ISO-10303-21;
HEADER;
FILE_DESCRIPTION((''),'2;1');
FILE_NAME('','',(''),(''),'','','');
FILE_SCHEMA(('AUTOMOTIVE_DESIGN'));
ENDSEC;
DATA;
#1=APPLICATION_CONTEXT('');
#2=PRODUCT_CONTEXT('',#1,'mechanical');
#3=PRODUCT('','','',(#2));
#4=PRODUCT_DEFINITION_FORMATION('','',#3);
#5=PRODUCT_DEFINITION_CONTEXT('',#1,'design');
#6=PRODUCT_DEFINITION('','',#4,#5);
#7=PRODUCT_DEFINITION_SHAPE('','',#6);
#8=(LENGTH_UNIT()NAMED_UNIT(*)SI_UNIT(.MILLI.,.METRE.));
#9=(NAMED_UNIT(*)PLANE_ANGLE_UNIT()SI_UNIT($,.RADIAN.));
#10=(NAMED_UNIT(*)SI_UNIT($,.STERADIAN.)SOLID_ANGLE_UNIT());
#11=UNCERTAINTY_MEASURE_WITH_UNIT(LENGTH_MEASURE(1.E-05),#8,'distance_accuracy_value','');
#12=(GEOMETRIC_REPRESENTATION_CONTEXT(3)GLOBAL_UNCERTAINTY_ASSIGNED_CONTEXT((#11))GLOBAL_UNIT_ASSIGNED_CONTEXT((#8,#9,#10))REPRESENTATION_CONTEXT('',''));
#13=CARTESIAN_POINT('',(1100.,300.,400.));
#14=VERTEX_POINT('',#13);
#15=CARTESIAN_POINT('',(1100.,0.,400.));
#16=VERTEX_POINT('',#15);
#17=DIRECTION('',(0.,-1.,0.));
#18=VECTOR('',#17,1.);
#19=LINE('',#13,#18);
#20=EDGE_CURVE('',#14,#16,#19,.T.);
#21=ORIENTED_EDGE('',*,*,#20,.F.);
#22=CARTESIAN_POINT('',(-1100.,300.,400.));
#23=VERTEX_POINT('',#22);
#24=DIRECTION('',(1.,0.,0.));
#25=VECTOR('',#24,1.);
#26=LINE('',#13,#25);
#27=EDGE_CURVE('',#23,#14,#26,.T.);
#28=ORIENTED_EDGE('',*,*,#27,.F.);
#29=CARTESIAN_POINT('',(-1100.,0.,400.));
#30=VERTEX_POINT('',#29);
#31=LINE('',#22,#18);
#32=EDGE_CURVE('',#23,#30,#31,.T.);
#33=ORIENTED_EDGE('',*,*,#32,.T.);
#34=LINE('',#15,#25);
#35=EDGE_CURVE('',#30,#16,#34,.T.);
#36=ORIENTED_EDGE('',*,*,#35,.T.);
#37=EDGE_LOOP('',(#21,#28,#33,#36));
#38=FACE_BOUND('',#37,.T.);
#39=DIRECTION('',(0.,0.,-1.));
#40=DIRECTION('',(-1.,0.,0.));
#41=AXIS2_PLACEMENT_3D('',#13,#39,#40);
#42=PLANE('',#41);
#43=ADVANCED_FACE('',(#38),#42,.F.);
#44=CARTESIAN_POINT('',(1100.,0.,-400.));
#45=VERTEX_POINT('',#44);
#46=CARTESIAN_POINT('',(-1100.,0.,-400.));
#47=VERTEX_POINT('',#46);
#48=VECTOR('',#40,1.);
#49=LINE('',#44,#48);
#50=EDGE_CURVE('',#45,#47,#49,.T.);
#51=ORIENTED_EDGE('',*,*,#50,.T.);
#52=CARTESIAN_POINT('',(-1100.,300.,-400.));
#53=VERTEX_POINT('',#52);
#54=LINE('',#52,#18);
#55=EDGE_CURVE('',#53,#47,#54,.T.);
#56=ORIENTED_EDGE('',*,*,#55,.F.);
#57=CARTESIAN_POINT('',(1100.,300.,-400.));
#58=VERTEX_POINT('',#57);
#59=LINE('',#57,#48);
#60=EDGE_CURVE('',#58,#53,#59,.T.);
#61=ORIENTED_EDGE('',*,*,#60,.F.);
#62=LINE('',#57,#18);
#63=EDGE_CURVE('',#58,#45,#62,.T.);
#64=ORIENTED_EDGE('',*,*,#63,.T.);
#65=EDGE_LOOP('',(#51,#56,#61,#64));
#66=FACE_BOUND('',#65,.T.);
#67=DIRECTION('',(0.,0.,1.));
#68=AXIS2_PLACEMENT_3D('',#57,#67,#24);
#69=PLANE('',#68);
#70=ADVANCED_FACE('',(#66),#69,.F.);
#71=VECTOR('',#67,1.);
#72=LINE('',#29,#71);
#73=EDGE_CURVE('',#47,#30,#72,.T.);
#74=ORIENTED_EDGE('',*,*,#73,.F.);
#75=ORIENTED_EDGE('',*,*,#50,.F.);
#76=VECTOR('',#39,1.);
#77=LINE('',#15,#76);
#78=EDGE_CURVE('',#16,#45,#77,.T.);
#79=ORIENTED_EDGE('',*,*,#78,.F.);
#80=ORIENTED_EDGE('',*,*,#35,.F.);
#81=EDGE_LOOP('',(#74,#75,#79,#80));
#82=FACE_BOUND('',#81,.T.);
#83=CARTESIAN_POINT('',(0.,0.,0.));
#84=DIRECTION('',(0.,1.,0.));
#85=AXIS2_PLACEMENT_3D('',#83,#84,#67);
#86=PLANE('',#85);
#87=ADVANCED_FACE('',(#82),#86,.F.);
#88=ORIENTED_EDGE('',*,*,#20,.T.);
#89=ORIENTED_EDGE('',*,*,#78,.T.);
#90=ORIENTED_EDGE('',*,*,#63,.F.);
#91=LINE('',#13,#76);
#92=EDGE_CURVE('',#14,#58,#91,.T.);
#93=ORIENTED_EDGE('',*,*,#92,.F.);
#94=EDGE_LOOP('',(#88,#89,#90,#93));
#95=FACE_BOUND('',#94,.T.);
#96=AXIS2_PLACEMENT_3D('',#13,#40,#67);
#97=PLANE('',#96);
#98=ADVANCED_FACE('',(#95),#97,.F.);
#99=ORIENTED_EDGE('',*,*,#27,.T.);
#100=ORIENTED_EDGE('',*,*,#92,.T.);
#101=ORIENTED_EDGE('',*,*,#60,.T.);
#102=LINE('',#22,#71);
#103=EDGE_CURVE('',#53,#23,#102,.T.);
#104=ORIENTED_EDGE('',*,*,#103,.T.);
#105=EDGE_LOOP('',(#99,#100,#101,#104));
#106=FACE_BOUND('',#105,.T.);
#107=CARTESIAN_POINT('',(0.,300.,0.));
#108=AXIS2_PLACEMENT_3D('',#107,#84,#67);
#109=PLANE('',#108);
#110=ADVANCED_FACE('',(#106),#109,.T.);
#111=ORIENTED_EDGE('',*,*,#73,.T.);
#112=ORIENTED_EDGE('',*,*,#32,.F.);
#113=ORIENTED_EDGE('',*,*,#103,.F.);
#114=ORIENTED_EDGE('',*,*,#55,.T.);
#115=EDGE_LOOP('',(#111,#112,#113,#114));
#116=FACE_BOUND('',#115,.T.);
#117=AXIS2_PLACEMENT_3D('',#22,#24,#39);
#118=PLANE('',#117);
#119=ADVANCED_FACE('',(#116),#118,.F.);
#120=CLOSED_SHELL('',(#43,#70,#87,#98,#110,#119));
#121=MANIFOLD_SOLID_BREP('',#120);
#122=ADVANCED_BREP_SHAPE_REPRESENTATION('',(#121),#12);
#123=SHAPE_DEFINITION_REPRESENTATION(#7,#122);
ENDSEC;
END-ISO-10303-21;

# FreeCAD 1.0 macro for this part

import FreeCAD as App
import Part
import Sketcher

V = App.Vector

doc = App.newDocument("Part")
params = doc.addObject("Spreadsheet::Sheet", "Params")
for row, (alias, value) in enumerate([
    ("sketch1_width", "2200 mm"),
    ("sketch1_height", "800 mm"),
    ("pad1_length", "300 mm"),
], start=1):
    params.set(f"A{row}", alias)
    params.set(f"B{row}", "=" + value)
    params.setAlias(f"B{row}", alias)

body = doc.addObject("PartDesign::Body", "Body")

# Sketch on XZ plane
sketch1 = doc.addObject("Sketcher::SketchObject", "Sketch")
body.addObject(sketch1)
sketch1.AttachmentSupport = (doc.XZ_Plane, [""])
sketch1.MapMode = "FlatFace"
sketch1.addGeometry([
    Part.LineSegment(V(-1100, -400, 0), V(-1100, 400, 0)),
    Part.LineSegment(V(-1100, 400, 0), V(1100, 400, 0)),
    Part.LineSegment(V(1100, 400, 0), V(1100, -400, 0)),
    Part.LineSegment(V(1100, -400, 0), V(-1100, -400, 0)),
], False)
sketch1.addConstraint([
    Sketcher.Constraint("Coincident", 0, 2, 1, 1),
    Sketcher.Constraint("Coincident", 1, 2, 2, 1),
    Sketcher.Constraint("Coincident", 2, 2, 3, 1),
    Sketcher.Constraint("Coincident", 3, 2, 0, 1),
    Sketcher.Constraint("Vertical", 0),
    Sketcher.Constraint("Horizontal", 1),
    Sketcher.Constraint("Vertical", 2),
    Sketcher.Constraint("Horizontal", 3),
    Sketcher.Constraint("Symmetric", 0, 2, 2, 2, -1, 1),
    Sketcher.Constraint("DistanceX", 1, 1, 1, 2, 2200.0),
    Sketcher.Constraint("DistanceY", 0, 1, 0, 2, 800.0),
])
sketch1.setExpression("Constraints[9]", "Params.sketch1_width")
sketch1.setExpression("Constraints[10]", "Params.sketch1_height")
pad1 = doc.addObject("PartDesign::Pad", "Pad")
body.addObject(pad1)
pad1.Profile = sketch1
pad1.setExpression("Length", "Params.pad1_length")
pad1.Reversed = True

doc.recompute()
